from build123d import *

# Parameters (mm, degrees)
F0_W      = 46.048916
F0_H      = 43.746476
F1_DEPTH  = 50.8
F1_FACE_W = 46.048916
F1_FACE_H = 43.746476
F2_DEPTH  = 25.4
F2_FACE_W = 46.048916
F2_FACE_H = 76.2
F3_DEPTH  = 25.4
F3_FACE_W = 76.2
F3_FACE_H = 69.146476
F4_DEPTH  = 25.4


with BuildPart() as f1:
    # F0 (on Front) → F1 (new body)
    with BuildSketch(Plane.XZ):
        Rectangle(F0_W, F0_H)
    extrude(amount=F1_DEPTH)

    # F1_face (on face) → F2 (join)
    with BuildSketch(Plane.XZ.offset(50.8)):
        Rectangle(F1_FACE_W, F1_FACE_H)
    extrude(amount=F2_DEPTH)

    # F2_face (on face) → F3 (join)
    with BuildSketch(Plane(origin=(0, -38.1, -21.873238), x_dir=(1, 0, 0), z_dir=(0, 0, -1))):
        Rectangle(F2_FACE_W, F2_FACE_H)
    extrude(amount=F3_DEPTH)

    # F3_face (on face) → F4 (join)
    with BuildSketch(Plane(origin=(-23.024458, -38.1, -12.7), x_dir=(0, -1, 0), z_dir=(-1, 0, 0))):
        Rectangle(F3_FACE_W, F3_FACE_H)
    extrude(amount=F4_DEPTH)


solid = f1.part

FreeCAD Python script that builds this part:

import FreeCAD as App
import Part
import Sketcher
from FreeCAD import Vector
Q = App.Units.Quantity


def add_polygon(sketch, points):
    """Adds a closed chain of lines whose ends are joined by coincident constraints."""
    first, n = sketch.GeometryCount, len(points)
    for a, b in zip(points, points[1:] + points[:1]):
        sketch.addGeometry(Part.LineSegment(App.Vector(*a, 0), App.Vector(*b, 0)), False)
    for i in range(n):
        sketch.addConstraint(Sketcher.Constraint("Coincident", first + i, 2, first + (i + 1) % n, 1))

doc = App.newDocument("Part")
body = doc.addObject("PartDesign::Body", "Body")

sketch1 = body.newObject("Sketcher::SketchObject", "Sketch")
sketch1.AttachmentSupport = (doc.getObject("XZ_Plane"), [""])
sketch1.MapMode = "FlatFace"
add_polygon(sketch1, [(-23.024458, 21.873238), (-23.024458, -21.873238), (23.024458, -21.873238), (23.024458, 21.873238)])
sketch1.addConstraint(Sketcher.Constraint("Vertical", 0))
sketch1.addConstraint(Sketcher.Constraint("Horizontal", 1))
sketch1.addConstraint(Sketcher.Constraint("Vertical", 2))
sketch1.addConstraint(Sketcher.Constraint("Horizontal", 3))
sketch1.addConstraint(Sketcher.Constraint("Symmetric", 0, 2, 2, 2, -1, 1))
sketch1.addConstraint(Sketcher.Constraint("DistanceX", 1, 1, 1, 2, Q("46.048916 mm")))
sketch1.addConstraint(Sketcher.Constraint("DistanceY", 0, 2, 0, 1, Q("43.746476 mm")))
pad1 = body.newObject("PartDesign::Pad", "Pad")
pad1.Profile = sketch1
pad1.Length = Q("2 in")

sketch2 = body.newObject("Sketcher::SketchObject", "Sketch001")
sketch2.AttachmentSupport = (doc.getObject("XZ_Plane"), [""])
sketch2.MapMode = "FlatFace"
sketch2.AttachmentOffset = App.Placement(Vector(0, 0, 2 * 25.4), App.Rotation())
add_polygon(sketch2, [(-23.024458, 21.873238), (-23.024458, -21.873238), (23.024458, -21.873238), (23.024458, 21.873238)])
sketch2.addConstraint(Sketcher.Constraint("Vertical", 0))
sketch2.addConstraint(Sketcher.Constraint("Horizontal", 1))
sketch2.addConstraint(Sketcher.Constraint("Vertical", 2))
sketch2.addConstraint(Sketcher.Constraint("Horizontal", 3))
sketch2.addConstraint(Sketcher.Constraint("Symmetric", 0, 2, 2, 2, -1, 1))
sketch2.addConstraint(Sketcher.Constraint("DistanceX", 1, 1, 1, 2, Q("46.048916 mm")))
sketch2.addConstraint(Sketcher.Constraint("DistanceY", 0, 2, 0, 1, Q("43.746476 mm")))
pad2 = body.newObject("PartDesign::Pad", "Pad001")
pad2.Profile = sketch2
pad2.Length = Q("1 in")

sketch3 = body.newObject("Sketcher::SketchObject", "Sketch002")
sketch3.AttachmentSupport = (doc.getObject("XY_Plane"), [""])
sketch3.MapMode = "FlatFace"
sketch3.AttachmentOffset = App.Placement(Vector(0, 0, -21.873238), App.Rotation())
add_polygon(sketch3, [(-23.024458, -76.2), (-23.024458, 0), (23.024458, 0), (23.024458, -76.2)])
sketch3.addConstraint(Sketcher.Constraint("Vertical", 0))
sketch3.addConstraint(Sketcher.Constraint("Horizontal", 1))
sketch3.addConstraint(Sketcher.Constraint("Vertical", 2))
sketch3.addConstraint(Sketcher.Constraint("Horizontal", 3))
sketch3.addConstraint(Sketcher.Constraint("Symmetric", 0, 2, 1, 2, -1, 1))
sketch3.addConstraint(Sketcher.Constraint("DistanceY", 0, 1, 0, 2, Q("3 in")))
sketch3.addConstraint(Sketcher.Constraint("DistanceX", 1, 1, 1, 2, Q("46.048916 mm")))
pad3 = body.newObject("PartDesign::Pad", "Pad002")
pad3.Profile = sketch3
pad3.Length = Q("1 in")
pad3.Reversed = True

sketch4 = body.newObject("Sketcher::SketchObject", "Sketch003")
sketch4.AttachmentSupport = (doc.getObject("YZ_Plane"), [""])
sketch4.MapMode = "FlatFace"
sketch4.AttachmentOffset = App.Placement(Vector(0, 0, -23.024458), App.Rotation())
add_polygon(sketch4, [(0, 21.873238), (0, -47.273238), (-76.2, -47.273238), (-76.2, 21.873238)])
sketch4.addConstraint(Sketcher.Constraint("Vertical", 0))
sketch4.addConstraint(Sketcher.Constraint("Horizontal", 1))
sketch4.addConstraint(Sketcher.Constraint("Vertical", 2))
sketch4.addConstraint(Sketcher.Constraint("Horizontal", 3))
sketch4.addConstraint(Sketcher.Constraint("PointOnObject", 0, 2, -2))
sketch4.addConstraint(Sketcher.Constraint("DistanceX", 1, 2, 1, 1, Q("3 in")))
sketch4.addConstraint(Sketcher.Constraint("DistanceY", 0, 2, 0, 1, Q("69.146476 mm")))
sketch4.addConstraint(Sketcher.Constraint("DistanceY", -1, 1, 2, 2, Q("21.873238 mm")))
pad4 = body.newObject("PartDesign::Pad", "Pad003")
pad4.Profile = sketch4
pad4.Length = Q("1 in")
pad4.Reversed = True

doc.recompute()
